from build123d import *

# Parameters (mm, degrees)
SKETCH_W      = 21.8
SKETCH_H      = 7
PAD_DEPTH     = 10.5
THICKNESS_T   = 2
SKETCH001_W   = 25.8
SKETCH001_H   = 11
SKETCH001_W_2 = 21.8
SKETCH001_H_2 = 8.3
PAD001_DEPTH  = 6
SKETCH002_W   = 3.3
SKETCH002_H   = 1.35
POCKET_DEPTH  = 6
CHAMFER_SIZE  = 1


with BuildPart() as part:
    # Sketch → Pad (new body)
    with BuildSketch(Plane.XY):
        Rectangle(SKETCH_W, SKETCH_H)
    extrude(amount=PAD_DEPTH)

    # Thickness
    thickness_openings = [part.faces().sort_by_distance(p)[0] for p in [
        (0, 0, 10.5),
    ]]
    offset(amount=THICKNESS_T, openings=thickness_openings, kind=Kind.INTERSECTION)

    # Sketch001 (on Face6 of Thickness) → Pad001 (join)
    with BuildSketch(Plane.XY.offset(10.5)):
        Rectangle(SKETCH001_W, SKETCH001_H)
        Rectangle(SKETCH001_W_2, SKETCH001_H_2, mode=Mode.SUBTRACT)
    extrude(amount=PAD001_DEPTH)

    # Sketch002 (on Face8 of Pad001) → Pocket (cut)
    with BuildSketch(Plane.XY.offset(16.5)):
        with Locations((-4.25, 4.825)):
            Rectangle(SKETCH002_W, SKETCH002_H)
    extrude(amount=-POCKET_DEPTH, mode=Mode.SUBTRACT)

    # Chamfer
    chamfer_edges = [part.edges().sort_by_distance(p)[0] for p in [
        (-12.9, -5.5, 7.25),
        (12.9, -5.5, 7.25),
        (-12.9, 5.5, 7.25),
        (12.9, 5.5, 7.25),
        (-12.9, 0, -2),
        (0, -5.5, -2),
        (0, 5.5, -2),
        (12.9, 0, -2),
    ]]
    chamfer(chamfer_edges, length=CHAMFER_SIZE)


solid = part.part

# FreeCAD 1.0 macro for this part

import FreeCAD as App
import Part
import Sketcher

V = App.Vector
Q = App.Units.Quantity


def edges_at(feature, points):
    """Names of the edges that pass closest to the given points."""
    edges = feature.Shape.Edges
    near = lambda p: min(range(len(edges)), key=lambda i: edges[i].distToShape(Part.Vertex(*p))[0])
    return sorted({f"Edge{near(p) + 1}" for p in points})


def faces_at(feature, points):
    """Names of the faces that lie closest to the given points."""
    faces = feature.Shape.Faces
    near = lambda p: min(range(len(faces)), key=lambda i: faces[i].distToShape(Part.Vertex(*p))[0])
    return sorted({f"Face{near(p) + 1}" for p in points})


def add_polygon(sketch, points):
    """Adds a closed chain of lines whose ends are joined by coincident constraints."""
    first, n = sketch.GeometryCount, len(points)
    for a, b in zip(points, points[1:] + points[:1]):
        sketch.addGeometry(Part.LineSegment(App.Vector(*a, 0), App.Vector(*b, 0)), False)
    for i in range(n):
        sketch.addConstraint(Sketcher.Constraint("Coincident", first + i, 2, first + (i + 1) % n, 1))

doc = App.newDocument("Part")
body = doc.addObject("PartDesign::Body", "Body")

# Sketch on XY plane
sketch1 = body.newObject("Sketcher::SketchObject", "Sketch")
sketch1.AttachmentSupport = (doc.getObject("XY_Plane"), [""])
sketch1.MapMode = "FlatFace"
add_polygon(sketch1, [(-11, 4), (-11, -4), (11, -4), (11, 4)])  # lines 0-3
sketch1.addConstraint([
    Sketcher.Constraint("Vertical", 0),
    Sketcher.Constraint("Horizontal", 1),
    Sketcher.Constraint("Vertical", 2),
    Sketcher.Constraint("Horizontal", 3),
    Sketcher.Constraint("Symmetric", 0, 2, 2, 2, -1, 1),
    Sketcher.Constraint("DistanceY", 0, 2, 0, 1, Q("7 mm")),
    Sketcher.Constraint("DistanceX", 1, 1, 1, 2, Q("21.8 mm")),
])
pad1 = body.newObject("PartDesign::Pad", "Pad")
pad1.Profile = sketch1
pad1.Length = 10.5
doc.recompute()

thickness = body.newObject("PartDesign::Thickness", "Thickness")
thickness.Base = (pad1, faces_at(pad1, [(0, 0, 10.5)]))
thickness.Value = 2
thickness.Reversed = False
thickness.Join = "Intersection"

# Sketch on XY plane
sketch2 = body.newObject("Sketcher::SketchObject", "Sketch001")
sketch2.AttachmentSupport = (doc.getObject("XY_Plane"), [""])
sketch2.MapMode = "FlatFace"
sketch2.AttachmentOffset = App.Placement(V(0, 0, 10.5), App.Rotation())
add_polygon(sketch2, [(-13, 6), (-13, -6), (13, -6), (13, 6)])  # lines 0-3
add_polygon(sketch2, [(11, -4), (-11, -4), (-11, 4), (11, 4)])  # lines 4-7
sketch2.addConstraint([
    Sketcher.Constraint("Vertical", 0),
    Sketcher.Constraint("Horizontal", 1),
    Sketcher.Constraint("Vertical", 2),
    Sketcher.Constraint("Horizontal", 3),
    Sketcher.Constraint("Horizontal", 4),
    Sketcher.Constraint("Vertical", 5),
    Sketcher.Constraint("Horizontal", 6),
    Sketcher.Constraint("Vertical", 7),
    Sketcher.Constraint("Symmetric", 0, 2, 2, 2, -1, 1),
    Sketcher.Constraint("Symmetric", 4, 2, 6, 2, -1, 1),
    Sketcher.Constraint("DistanceY", 0, 2, 0, 1, Q("11 mm")),
    Sketcher.Constraint("DistanceX", 1, 1, 1, 2, Q("25.8 mm")),
    Sketcher.Constraint("DistanceX", 4, 2, 4, 1, Q("21.8 mm")),
    Sketcher.Constraint("DistanceY", 5, 1, 5, 2, Q("8.3 mm")),
])
pad2 = body.newObject("PartDesign::Pad", "Pad001")
pad2.Profile = sketch2
pad2.Length = 6

# Sketch on XY plane
sketch3 = body.newObject("Sketcher::SketchObject", "Sketch002")
sketch3.AttachmentSupport = (doc.getObject("XY_Plane"), [""])
sketch3.MapMode = "FlatFace"
sketch3.AttachmentOffset = App.Placement(V(0, 0, 16.5), App.Rotation())
add_polygon(sketch3, [(-5.9, 5.5), (-5.9, 4.2), (-2.6, 4.2), (-2.6, 5.5)])  # lines 0-3
sketch3.addConstraint([
    Sketcher.Constraint("Vertical", 0),
    Sketcher.Constraint("Horizontal", 1),
    Sketcher.Constraint("Vertical", 2),
    Sketcher.Constraint("Horizontal", 3),
    Sketcher.Constraint("DistanceX", 1, 1, 1, 2, Q("3.3 mm")),
    Sketcher.Constraint("DistanceY", 0, 2, 0, 1, Q("1.35 mm")),
    Sketcher.Constraint("DistanceX", 0, 2, -1, 1, Q("5.9 mm")),
    Sketcher.Constraint("DistanceY", -1, 1, 2, 2, Q("5.5 mm")),
])
pocket1 = body.newObject("PartDesign::Pocket", "Pocket")
pocket1.Profile = sketch3
pocket1.Length = 6
doc.recompute()

chamfer = body.newObject("PartDesign::Chamfer", "Chamfer")
chamfer.Base = (pocket1, edges_at(pocket1, [
    (-12.9, -5.5, 7.25),
    (12.9, -5.5, 7.25),
    (-12.9, 5.5, 7.25),
    (12.9, 5.5, 7.25),
    (-12.9, 0, -2),
    (0, -5.5, -2),
    (0, 5.5, -2),
    (12.9, 0, -2),
]))
chamfer.Size = 1

doc.recompute()
